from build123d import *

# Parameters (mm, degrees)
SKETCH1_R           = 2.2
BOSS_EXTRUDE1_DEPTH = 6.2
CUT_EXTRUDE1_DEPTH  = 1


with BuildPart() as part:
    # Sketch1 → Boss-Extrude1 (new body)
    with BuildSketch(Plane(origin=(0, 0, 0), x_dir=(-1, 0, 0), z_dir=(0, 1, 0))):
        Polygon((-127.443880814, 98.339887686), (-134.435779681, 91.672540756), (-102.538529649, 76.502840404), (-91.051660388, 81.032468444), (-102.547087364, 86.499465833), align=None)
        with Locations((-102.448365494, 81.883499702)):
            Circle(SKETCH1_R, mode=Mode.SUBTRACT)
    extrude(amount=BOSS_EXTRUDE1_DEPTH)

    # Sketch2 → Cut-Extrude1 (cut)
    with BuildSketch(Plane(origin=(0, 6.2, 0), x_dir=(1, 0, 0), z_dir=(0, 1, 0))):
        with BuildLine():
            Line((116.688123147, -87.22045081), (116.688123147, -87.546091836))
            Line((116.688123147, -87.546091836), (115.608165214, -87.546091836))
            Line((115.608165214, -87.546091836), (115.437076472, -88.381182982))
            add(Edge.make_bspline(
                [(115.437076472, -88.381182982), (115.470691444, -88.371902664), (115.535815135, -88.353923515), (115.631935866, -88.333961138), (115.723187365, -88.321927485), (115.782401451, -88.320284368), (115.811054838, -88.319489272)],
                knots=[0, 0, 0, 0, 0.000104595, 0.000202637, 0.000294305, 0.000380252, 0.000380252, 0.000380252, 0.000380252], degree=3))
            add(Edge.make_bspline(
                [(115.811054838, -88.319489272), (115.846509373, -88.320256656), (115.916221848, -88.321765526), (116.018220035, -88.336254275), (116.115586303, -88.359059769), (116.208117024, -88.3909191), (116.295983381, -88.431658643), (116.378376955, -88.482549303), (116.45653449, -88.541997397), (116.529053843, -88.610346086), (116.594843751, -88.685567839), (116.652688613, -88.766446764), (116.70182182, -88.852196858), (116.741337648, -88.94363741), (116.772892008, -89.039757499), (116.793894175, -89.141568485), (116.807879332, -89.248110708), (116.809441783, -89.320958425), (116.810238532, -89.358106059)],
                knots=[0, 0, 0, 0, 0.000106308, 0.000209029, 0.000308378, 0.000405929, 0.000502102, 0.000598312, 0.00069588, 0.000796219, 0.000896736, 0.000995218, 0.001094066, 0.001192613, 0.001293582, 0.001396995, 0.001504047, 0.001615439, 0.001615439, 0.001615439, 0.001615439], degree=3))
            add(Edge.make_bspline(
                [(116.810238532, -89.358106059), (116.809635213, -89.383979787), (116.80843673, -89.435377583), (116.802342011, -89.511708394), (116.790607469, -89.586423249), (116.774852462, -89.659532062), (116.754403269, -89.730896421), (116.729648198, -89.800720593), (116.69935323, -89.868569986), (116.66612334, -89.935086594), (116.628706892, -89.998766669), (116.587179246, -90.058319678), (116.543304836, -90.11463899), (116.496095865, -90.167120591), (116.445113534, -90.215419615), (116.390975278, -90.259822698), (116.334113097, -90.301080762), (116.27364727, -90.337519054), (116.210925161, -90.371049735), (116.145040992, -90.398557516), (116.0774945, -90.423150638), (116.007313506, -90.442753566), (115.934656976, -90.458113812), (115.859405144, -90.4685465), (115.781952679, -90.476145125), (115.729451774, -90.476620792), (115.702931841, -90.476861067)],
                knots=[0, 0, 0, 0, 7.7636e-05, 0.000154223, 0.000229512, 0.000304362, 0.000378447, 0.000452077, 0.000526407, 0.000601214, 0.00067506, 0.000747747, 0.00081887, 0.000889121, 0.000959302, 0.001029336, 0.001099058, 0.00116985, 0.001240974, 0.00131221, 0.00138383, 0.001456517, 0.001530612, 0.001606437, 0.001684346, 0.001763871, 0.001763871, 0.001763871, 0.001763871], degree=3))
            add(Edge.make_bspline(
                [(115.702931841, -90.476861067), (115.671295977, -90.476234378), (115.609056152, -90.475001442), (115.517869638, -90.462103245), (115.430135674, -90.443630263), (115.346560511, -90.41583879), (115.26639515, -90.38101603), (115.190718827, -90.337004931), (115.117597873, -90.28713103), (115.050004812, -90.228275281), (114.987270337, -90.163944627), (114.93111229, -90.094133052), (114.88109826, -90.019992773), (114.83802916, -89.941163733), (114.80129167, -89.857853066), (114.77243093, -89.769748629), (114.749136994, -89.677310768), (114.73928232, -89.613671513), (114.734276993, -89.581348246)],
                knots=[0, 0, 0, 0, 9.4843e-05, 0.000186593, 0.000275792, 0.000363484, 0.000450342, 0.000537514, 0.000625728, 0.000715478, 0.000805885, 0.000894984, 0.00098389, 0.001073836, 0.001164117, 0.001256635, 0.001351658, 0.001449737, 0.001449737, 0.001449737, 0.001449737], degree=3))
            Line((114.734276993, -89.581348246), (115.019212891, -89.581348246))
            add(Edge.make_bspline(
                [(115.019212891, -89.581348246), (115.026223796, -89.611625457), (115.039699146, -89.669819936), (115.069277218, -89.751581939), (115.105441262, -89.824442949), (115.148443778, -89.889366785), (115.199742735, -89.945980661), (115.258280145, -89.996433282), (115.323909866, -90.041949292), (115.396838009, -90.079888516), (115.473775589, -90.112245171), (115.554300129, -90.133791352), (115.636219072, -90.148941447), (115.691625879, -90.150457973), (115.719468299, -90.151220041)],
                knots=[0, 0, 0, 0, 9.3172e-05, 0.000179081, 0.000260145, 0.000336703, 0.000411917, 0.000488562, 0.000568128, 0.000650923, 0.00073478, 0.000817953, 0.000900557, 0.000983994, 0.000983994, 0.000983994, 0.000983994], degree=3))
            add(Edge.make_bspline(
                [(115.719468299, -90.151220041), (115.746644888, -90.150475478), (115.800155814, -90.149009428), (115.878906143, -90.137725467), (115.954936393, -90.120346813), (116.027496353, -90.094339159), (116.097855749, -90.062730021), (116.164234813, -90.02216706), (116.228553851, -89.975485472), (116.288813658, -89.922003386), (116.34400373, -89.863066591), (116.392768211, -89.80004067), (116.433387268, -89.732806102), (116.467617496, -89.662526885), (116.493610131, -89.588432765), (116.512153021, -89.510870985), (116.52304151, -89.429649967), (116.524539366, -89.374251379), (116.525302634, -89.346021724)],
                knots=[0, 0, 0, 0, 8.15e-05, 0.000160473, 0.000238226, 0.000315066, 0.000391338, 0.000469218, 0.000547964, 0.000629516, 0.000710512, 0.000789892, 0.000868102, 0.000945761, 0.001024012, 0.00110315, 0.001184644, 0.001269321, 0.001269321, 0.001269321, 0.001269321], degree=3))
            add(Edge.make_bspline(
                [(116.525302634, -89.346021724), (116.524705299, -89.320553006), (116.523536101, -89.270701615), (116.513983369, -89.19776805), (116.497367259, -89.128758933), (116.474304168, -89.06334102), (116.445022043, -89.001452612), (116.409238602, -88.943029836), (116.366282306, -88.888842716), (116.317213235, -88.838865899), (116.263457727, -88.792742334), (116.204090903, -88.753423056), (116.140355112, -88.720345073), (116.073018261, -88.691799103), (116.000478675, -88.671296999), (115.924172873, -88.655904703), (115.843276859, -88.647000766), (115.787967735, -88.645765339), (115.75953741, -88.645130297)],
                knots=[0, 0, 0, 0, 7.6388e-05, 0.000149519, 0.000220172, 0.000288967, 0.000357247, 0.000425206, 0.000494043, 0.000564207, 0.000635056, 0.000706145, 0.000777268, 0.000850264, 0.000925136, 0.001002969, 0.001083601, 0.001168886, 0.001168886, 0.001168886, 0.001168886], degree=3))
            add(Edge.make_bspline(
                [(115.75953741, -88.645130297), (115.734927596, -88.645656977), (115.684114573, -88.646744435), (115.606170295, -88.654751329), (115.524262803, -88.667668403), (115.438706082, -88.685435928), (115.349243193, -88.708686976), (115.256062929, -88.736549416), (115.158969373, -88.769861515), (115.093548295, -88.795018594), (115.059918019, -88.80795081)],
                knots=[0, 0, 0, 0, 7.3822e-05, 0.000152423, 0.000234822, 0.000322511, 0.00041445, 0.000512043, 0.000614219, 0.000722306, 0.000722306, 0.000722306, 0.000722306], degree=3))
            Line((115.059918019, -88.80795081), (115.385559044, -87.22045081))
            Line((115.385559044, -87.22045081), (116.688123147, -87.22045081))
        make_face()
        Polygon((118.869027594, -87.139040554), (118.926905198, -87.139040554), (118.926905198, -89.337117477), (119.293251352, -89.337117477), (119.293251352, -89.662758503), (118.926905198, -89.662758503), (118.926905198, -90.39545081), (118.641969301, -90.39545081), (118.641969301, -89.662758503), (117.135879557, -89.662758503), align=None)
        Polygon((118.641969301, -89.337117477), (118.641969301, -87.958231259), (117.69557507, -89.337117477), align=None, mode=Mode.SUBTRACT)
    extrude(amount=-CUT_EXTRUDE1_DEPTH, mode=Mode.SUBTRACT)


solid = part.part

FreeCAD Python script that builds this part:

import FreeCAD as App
import Part
import Sketcher
Q = App.Units.Quantity


def add_polygon(sketch, points):
    """Adds a closed chain of lines whose ends are joined by coincident constraints."""
    first, n = sketch.GeometryCount, len(points)
    for a, b in zip(points, points[1:] + points[:1]):
        sketch.addGeometry(Part.LineSegment(App.Vector(*a, 0), App.Vector(*b, 0)), False)
    for i in range(n):
        sketch.addConstraint(Sketcher.Constraint("Coincident", first + i, 2, first + (i + 1) % n, 1))

doc = App.newDocument("Part")
params = doc.addObject("Spreadsheet::Sheet", "Params")
for row, (alias, value) in enumerate([
    ("sketch1_diameter", "4.4 mm"),
    ("pad1_length", "6.2 mm"),
    ("pocket1_length", "1 mm"),
], start=1):
    params.set(f"A{row}", alias)
    params.set(f"B{row}", "=" + value)
    params.setAlias(f"B{row}", alias)

body = doc.addObject("PartDesign::Body", "Body")

# Sketch on XZ plane
sketch1 = body.newObject("Sketcher::SketchObject", "Sketch")
sketch1.AttachmentSupport = (doc.getObject("XZ_Plane"), [""])
sketch1.MapMode = "FlatFace"
add_polygon(sketch1, [(127.4, 98.3), (134.4, 91.7), (102.5, 76.5), (91.1, 81), (102.5, 86.5)])  # lines 0-4
sketch1.addGeometry(Part.Circle(App.Vector(102.4, 81.9, 0), App.Vector(0, 0, 1), 2.2), False)  # 5
sketch1.addConstraint([
    Sketcher.Constraint("Parallel", 1, 3),
    Sketcher.Constraint("Parallel", 3, 4),
    Sketcher.Constraint("Diameter", 5, Q("4.4 mm")),
    Sketcher.Constraint("Distance", 2, Q("12.3477 mm")),
    Sketcher.Constraint("DistanceY", -1, 1, 5, 3, Q("81.8835 mm")),
    Sketcher.Constraint("DistanceY", 1, 2, 0, 2, Q("15.1697 mm")),
    Sketcher.Constraint("DistanceX", 4, 2, 0, 2, Q("6.991899 mm")),
    Sketcher.Constraint("Distance", 0, Q("9.661271 mm")),
    Sketcher.Constraint("Distance", 4, Q("27.56893 mm")),
    Sketcher.Constraint("DistanceX", -1, 1, 0, 2, Q("134.43578 mm")),
    Sketcher.Constraint("DistanceY", -1, 1, 0, 2, Q("91.672541 mm")),
    Sketcher.Constraint("DistanceX", -1, 1, 1, 2, Q("102.53853 mm")),
    Sketcher.Constraint("DistanceX", 5, 3, 3, 2, Q("0.098722 mm")),
])
sketch1.setExpression("Constraints[7]", "Params.sketch1_diameter")
pad1 = body.newObject("PartDesign::Pad", "Pad")
pad1.Profile = sketch1
pad1.setExpression("Length", "Params.pad1_length")
pad1.Reversed = True

# Sketch on XZ plane
sketch2 = body.newObject("Sketcher::SketchObject", "Sketch001")
sketch2.AttachmentSupport = (doc.getObject("XZ_Plane"), [""])
sketch2.MapMode = "FlatFace"
sketch2.AttachmentOffset = App.Placement(App.Vector(0, 0, -6.2), App.Rotation())
sketch2.addGeometry(Part.LineSegment(App.Vector(116.688123, 87.546092, 0), App.Vector(116.688123, 87.220451, 0)), False)  # 0
sketch2.addGeometry(Part.LineSegment(App.Vector(116.688123, 87.220451, 0), App.Vector(115.385559, 87.220451, 0)), False)  # 1
sketch2.addGeometry(Part.LineSegment(App.Vector(115.385559, 87.220451, 0), App.Vector(115.059918, 88.807951, 0)), False)  # 2
sketch2.addGeometry(Part.BSplineCurve([App.Vector(115.759537, 88.64513, 0), App.Vector(115.734928, 88.645657, 0), App.Vector(115.684115, 88.646744, 0), App.Vector(115.60617, 88.654751, 0), App.Vector(115.524263, 88.667668, 0), App.Vector(115.438706, 88.685436, 0), App.Vector(115.349243, 88.708687, 0), App.Vector(115.256063, 88.736549, 0), App.Vector(115.158969, 88.769862, 0), App.Vector(115.093548, 88.795019, 0), App.Vector(115.059918, 88.807951, 0)], [4, 1, 1, 1, 1, 1, 1, 1, 4], [0, 0.000073822, 0.000152423, 0.000234822, 0.000322511, 0.00041445, 0.000512043, 0.000614219, 0.000722306], False, 3, [1, 1, 1, 1, 1, 1, 1, 1, 1, 1, 1], False), False)  # 3
sketch2.addGeometry(Part.BSplineCurve([App.Vector(116.525303, 89.346022, 0), App.Vector(116.524705, 89.320553, 0), App.Vector(116.523536, 89.270702, 0), App.Vector(116.513983, 89.197768, 0), App.Vector(116.497367, 89.128759, 0), App.Vector(116.474304, 89.063341, 0), App.Vector(116.445022, 89.001453, 0), App.Vector(116.409239, 88.94303, 0), App.Vector(116.366282, 88.888843, 0), App.Vector(116.317213, 88.838866, 0), App.Vector(116.263458, 88.792742, 0), App.Vector(116.204091, 88.753423, 0), App.Vector(116.140355, 88.720345, 0), App.Vector(116.073018, 88.691799, 0), App.Vector(116.000479, 88.671297, 0), App.Vector(115.924173, 88.655905, 0), App.Vector(115.843277, 88.647001, 0), App.Vector(115.787968, 88.645765, 0), App.Vector(115.759537, 88.64513, 0)], [4, 1, 1, 1, 1, 1, 1, 1, 1, 1, 1, 1, 1, 1, 1, 1, 4], [0, 0.000076388, 0.000149519, 0.000220172, 0.000288967, 0.000357247, 0.000425206, 0.000494043, 0.000564207, 0.000635056, 0.000706145, 0.000777268, 0.000850264, 0.000925136, 0.001002969, 0.001083601, 0.001168886], False, 3, [1, 1, 1, 1, 1, 1, 1, 1, 1, 1, 1, 1, 1, 1, 1, 1, 1, 1, 1], False), False)  # 4
sketch2.addGeometry(Part.BSplineCurve([App.Vector(115.719468, 90.15122, 0), App.Vector(115.746645, 90.150475, 0), App.Vector(115.800156, 90.149009, 0), App.Vector(115.878906, 90.137725, 0), App.Vector(115.954936, 90.120347, 0), App.Vector(116.027496, 90.094339, 0), App.Vector(116.097856, 90.06273, 0), App.Vector(116.164235, 90.022167, 0), App.Vector(116.228554, 89.975485, 0), App.Vector(116.288814, 89.922003, 0), App.Vector(116.344004, 89.863067, 0), App.Vector(116.392768, 89.800041, 0), App.Vector(116.433387, 89.732806, 0), App.Vector(116.467617, 89.662527, 0), App.Vector(116.49361, 89.588433, 0), App.Vector(116.512153, 89.510871, 0), App.Vector(116.523042, 89.42965, 0), App.Vector(116.524539, 89.374251, 0), App.Vector(116.525303, 89.346022, 0)], [4, 1, 1, 1, 1, 1, 1, 1, 1, 1, 1, 1, 1, 1, 1, 1, 4], [0, 0.0000815, 0.000160473, 0.000238226, 0.000315066, 0.000391338, 0.000469218, 0.000547964, 0.000629516, 0.000710512, 0.000789892, 0.000868102, 0.000945761, 0.001024012, 0.00110315, 0.001184644, 0.001269321], False, 3, [1, 1, 1, 1, 1, 1, 1, 1, 1, 1, 1, 1, 1, 1, 1, 1, 1, 1, 1], False), False)  # 5
sketch2.addGeometry(Part.BSplineCurve([App.Vector(115.019213, 89.581348, 0), App.Vector(115.026224, 89.611625, 0), App.Vector(115.039699, 89.66982, 0), App.Vector(115.069277, 89.751582, 0), App.Vector(115.105441, 89.824443, 0), App.Vector(115.148444, 89.889367, 0), App.Vector(115.199743, 89.945981, 0), App.Vector(115.25828, 89.996433, 0), App.Vector(115.32391, 90.041949, 0), App.Vector(115.396838, 90.079889, 0), App.Vector(115.473776, 90.112245, 0), App.Vector(115.5543, 90.133791, 0), App.Vector(115.636219, 90.148941, 0), App.Vector(115.691626, 90.150458, 0), App.Vector(115.719468, 90.15122, 0)], [4, 1, 1, 1, 1, 1, 1, 1, 1, 1, 1, 1, 4], [0, 0.000093172, 0.000179081, 0.000260145, 0.000336703, 0.000411917, 0.000488562, 0.000568128, 0.000650923, 0.00073478, 0.000817953, 0.000900557, 0.000983994], False, 3, [1, 1, 1, 1, 1, 1, 1, 1, 1, 1, 1, 1, 1, 1, 1], False), False)  # 6
sketch2.addGeometry(Part.LineSegment(App.Vector(115.019213, 89.581348, 0), App.Vector(114.734277, 89.581348, 0)), False)  # 7
sketch2.addGeometry(Part.BSplineCurve([App.Vector(115.702932, 90.476861, 0), App.Vector(115.671296, 90.476234, 0), App.Vector(115.609056, 90.475001, 0), App.Vector(115.51787, 90.462103, 0), App.Vector(115.430136, 90.44363, 0), App.Vector(115.346561, 90.415839, 0), App.Vector(115.266395, 90.381016, 0), App.Vector(115.190719, 90.337005, 0), App.Vector(115.117598, 90.287131, 0), App.Vector(115.050005, 90.228275, 0), App.Vector(114.98727, 90.163945, 0), App.Vector(114.931112, 90.094133, 0), App.Vector(114.881098, 90.019993, 0), App.Vector(114.838029, 89.941164, 0), App.Vector(114.801292, 89.857853, 0), App.Vector(114.772431, 89.769749, 0), App.Vector(114.749137, 89.677311, 0), App.Vector(114.739282, 89.613672, 0), App.Vector(114.734277, 89.581348, 0)], [4, 1, 1, 1, 1, 1, 1, 1, 1, 1, 1, 1, 1, 1, 1, 1, 4], [0, 0.000094843, 0.000186593, 0.000275792, 0.000363484, 0.000450342, 0.000537514, 0.000625728, 0.000715478, 0.000805885, 0.000894984, 0.00098389, 0.001073836, 0.001164117, 0.001256635, 0.001351658, 0.001449737], False, 3, [1, 1, 1, 1, 1, 1, 1, 1, 1, 1, 1, 1, 1, 1, 1, 1, 1, 1, 1], False), False)  # 8
sketch2.addGeometry(Part.BSplineCurve([App.Vector(116.810239, 89.358106, 0), App.Vector(116.809635, 89.38398, 0), App.Vector(116.808437, 89.435378, 0), App.Vector(116.802342, 89.511708, 0), App.Vector(116.790607, 89.586423, 0), App.Vector(116.774852, 89.659532, 0), App.Vector(116.754403, 89.730896, 0), App.Vector(116.729648, 89.800721, 0), App.Vector(116.699353, 89.86857, 0), App.Vector(116.666123, 89.935087, 0), App.Vector(116.628707, 89.998767, 0), App.Vector(116.587179, 90.05832, 0), App.Vector(116.543305, 90.114639, 0), App.Vector(116.496096, 90.167121, 0), App.Vector(116.445114, 90.21542, 0), App.Vector(116.390975, 90.259823, 0), App.Vector(116.334113, 90.301081, 0), App.Vector(116.273647, 90.337519, 0), App.Vector(116.210925, 90.37105, 0), App.Vector(116.145041, 90.398558, 0), App.Vector(116.077495, 90.423151, 0), App.Vector(116.007314, 90.442754, 0), App.Vector(115.934657, 90.458114, 0), App.Vector(115.859405, 90.468547, 0), App.Vector(115.781953, 90.476145, 0), App.Vector(115.729452, 90.476621, 0), App.Vector(115.702932, 90.476861, 0)], [4, 1, 1, 1, 1, 1, 1, 1, 1, 1, 1, 1, 1, 1, 1, 1, 1, 1, 1, 1, 1, 1, 1, 1, 4], [0, 0.000077636, 0.000154223, 0.000229512, 0.000304362, 0.000378447, 0.000452077, 0.000526407, 0.000601214, 0.00067506, 0.000747747, 0.00081887, 0.000889121, 0.000959302, 0.001029336, 0.001099058, 0.00116985, 0.001240974, 0.00131221, 0.00138383, 0.001456517, 0.001530612, 0.001606437, 0.001684346, 0.001763871], False, 3, [1, 1, 1, 1, 1, 1, 1, 1, 1, 1, 1, 1, 1, 1, 1, 1, 1, 1, 1, 1, 1, 1, 1, 1, 1, 1, 1], False), False)  # 9
sketch2.addGeometry(Part.BSplineCurve([App.Vector(115.811055, 88.319489, 0), App.Vector(115.846509, 88.320257, 0), App.Vector(115.916222, 88.321766, 0), App.Vector(116.01822, 88.336254, 0), App.Vector(116.115586, 88.35906, 0), App.Vector(116.208117, 88.390919, 0), App.Vector(116.295983, 88.431659, 0), App.Vector(116.378377, 88.482549, 0), App.Vector(116.456534, 88.541997, 0), App.Vector(116.529054, 88.610346, 0), App.Vector(116.594844, 88.685568, 0), App.Vector(116.652689, 88.766447, 0), App.Vector(116.701822, 88.852197, 0), App.Vector(116.741338, 88.943637, 0), App.Vector(116.772892, 89.039757, 0), App.Vector(116.793894, 89.141568, 0), App.Vector(116.807879, 89.248111, 0), App.Vector(116.809442, 89.320958, 0), App.Vector(116.810239, 89.358106, 0)], [4, 1, 1, 1, 1, 1, 1, 1, 1, 1, 1, 1, 1, 1, 1, 1, 4], [0, 0.000106308, 0.000209029, 0.000308378, 0.000405929, 0.000502102, 0.000598312, 0.00069588, 0.000796219, 0.000896736, 0.000995218, 0.001094066, 0.001192613, 0.001293582, 0.001396995, 0.001504047, 0.001615439], False, 3, [1, 1, 1, 1, 1, 1, 1, 1, 1, 1, 1, 1, 1, 1, 1, 1, 1, 1, 1], False), False)  # 10
sketch2.addGeometry(Part.BSplineCurve([App.Vector(115.437076, 88.381183, 0), App.Vector(115.470691, 88.371903, 0), App.Vector(115.535815, 88.353924, 0), App.Vector(115.631936, 88.333961, 0), App.Vector(115.723187, 88.321927, 0), App.Vector(115.782401, 88.320284, 0), App.Vector(115.811055, 88.319489, 0)], [4, 1, 1, 1, 4], [0, 0.000104595, 0.000202637, 0.000294305, 0.000380252], False, 3, [1, 1, 1, 1, 1, 1, 1], False), False)  # 11
sketch2.addGeometry(Part.LineSegment(App.Vector(115.437076, 88.381183, 0), App.Vector(115.608165, 87.546092, 0)), False)  # 12
sketch2.addGeometry(Part.LineSegment(App.Vector(115.608165, 87.546092, 0), App.Vector(116.688123, 87.546092, 0)), False)  # 13
add_polygon(sketch2, [(118.926905, 87.139041), (118.869028, 87.139041), (117.13588, 89.662759), (118.641969, 89.662759), (118.641969, 90.395451), (118.926905, 90.395451), (118.926905, 89.662759), (119.293251, 89.662759), (119.293251, 89.337117), (118.926905, 89.337117)])  # lines 14-23
add_polygon(sketch2, [(118.641969, 89.337117), (117.695575, 89.337117), (118.641969, 87.958231)])  # lines 24-26
sketch2.addConstraint([
    Sketcher.Constraint("Block", 3),
    Sketcher.Constraint("Block", 4),
    Sketcher.Constraint("Block", 5),
    Sketcher.Constraint("Block", 6),
    Sketcher.Constraint("Block", 8),
    Sketcher.Constraint("Block", 9),
    Sketcher.Constraint("Block", 10),
    Sketcher.Constraint("Block", 11),
    Sketcher.Constraint("Coincident", 0, 2, 1, 1),
    Sketcher.Constraint("Coincident", 1, 2, 2, 1),
    Sketcher.Constraint("Coincident", 2, 2, 3, 2),
    Sketcher.Constraint("Coincident", 6, 1, 7, 1),
    Sketcher.Constraint("Coincident", 7, 2, 8, 2),
    Sketcher.Constraint("Coincident", 11, 1, 12, 1),
    Sketcher.Constraint("Coincident", 12, 2, 13, 1),
    Sketcher.Constraint("Coincident", 13, 2, 0, 1),
    Sketcher.Constraint("Vertical", 0),
    Sketcher.Constraint("Horizontal", 1),
    Sketcher.Constraint("Horizontal", 13),
    Sketcher.Constraint("Horizontal", 14),
    Sketcher.Constraint("Horizontal", 16),
    Sketcher.Constraint("Vertical", 17),
    Sketcher.Constraint("Horizontal", 18),
    Sketcher.Constraint("Vertical", 19),
    Sketcher.Constraint("Horizontal", 20),
    Sketcher.Constraint("Vertical", 21),
    Sketcher.Constraint("Horizontal", 22),
    Sketcher.Constraint("Vertical", 23),
    Sketcher.Constraint("Horizontal", 24),
    Sketcher.Constraint("Vertical", 26),
    Sketcher.Constraint("DistanceY", 0, 2, 17, 2, Q("3.175 mm")),
    Sketcher.Constraint("DistanceX", 16, 1, 16, 2, Q("1.50609 mm")),
    Sketcher.Constraint("DistanceY", 0, 2, 0, 1, Q("0.325641 mm")),
    Sketcher.Constraint("DistanceY", 21, 2, 21, 1, Q("0.325641 mm")),
    Sketcher.Constraint("DistanceY", 1, 2, 2, 2, Q("1.5875 mm")),
    Sketcher.Constraint("Distance", 15, Q("3.061528 mm")),
    Sketcher.Constraint("Distance", 25, Q("1.67242 mm")),
    Sketcher.Constraint("DistanceX", 1, 2, 1, 1, Q("1.302564 mm")),
    Sketcher.Constraint("DistanceX", 13, 1, 13, 2, Q("1.079958 mm")),
    Sketcher.Constraint("DistanceX", 14, 2, 14, 1, Q("0.057878 mm")),
    Sketcher.Constraint("DistanceX", 18, 1, 18, 2, Q("0.284936 mm")),
    Sketcher.Constraint("DistanceX", 20, 1, 20, 2, Q("0.366346 mm")),
    Sketcher.Constraint("DistanceX", 22, 2, 22, 1, Q("0.366346 mm")),
    Sketcher.Constraint("DistanceX", 24, 2, 24, 1, Q("0.946394 mm")),
    Sketcher.Constraint("DistanceY", 17, 1, 17, 2, Q("0.732692 mm")),
    Sketcher.Constraint("DistanceY", 19, 2, 19, 1, Q("0.732692 mm")),
    Sketcher.Constraint("DistanceX", -1, 1, 1, 2, Q("115.385559 mm")),
    Sketcher.Constraint("DistanceX", -1, 1, 15, 2, Q("117.13588 mm")),
    Sketcher.Constraint("DistanceX", -1, 1, 25, 2, Q("118.641969 mm")),
    Sketcher.Constraint("DistanceY", -1, 1, 25, 2, Q("87.958231 mm")),
])
pocket1 = body.newObject("PartDesign::Pocket", "Pocket")
pocket1.Profile = sketch2
pocket1.setExpression("Length", "Params.pocket1_length")
pocket1.Reversed = True

doc.recompute()
